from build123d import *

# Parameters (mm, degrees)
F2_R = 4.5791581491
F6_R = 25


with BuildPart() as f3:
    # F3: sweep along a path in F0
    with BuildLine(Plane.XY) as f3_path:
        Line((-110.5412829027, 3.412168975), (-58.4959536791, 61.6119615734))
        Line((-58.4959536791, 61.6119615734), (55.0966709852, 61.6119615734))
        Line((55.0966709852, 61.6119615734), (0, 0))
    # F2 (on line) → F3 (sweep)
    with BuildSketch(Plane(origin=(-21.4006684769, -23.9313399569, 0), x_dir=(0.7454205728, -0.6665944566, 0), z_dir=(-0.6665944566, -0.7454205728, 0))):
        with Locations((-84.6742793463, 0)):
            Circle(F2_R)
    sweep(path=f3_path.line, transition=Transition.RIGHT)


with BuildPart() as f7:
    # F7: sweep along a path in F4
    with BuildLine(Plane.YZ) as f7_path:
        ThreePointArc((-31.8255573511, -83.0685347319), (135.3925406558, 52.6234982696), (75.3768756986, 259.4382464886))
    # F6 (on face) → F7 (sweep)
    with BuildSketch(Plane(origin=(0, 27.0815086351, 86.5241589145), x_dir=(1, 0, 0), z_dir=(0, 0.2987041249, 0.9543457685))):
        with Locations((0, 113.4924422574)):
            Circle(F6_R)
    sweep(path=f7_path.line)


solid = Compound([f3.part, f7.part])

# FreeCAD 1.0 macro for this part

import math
import FreeCAD as App
import Part
import Sketcher

V = App.Vector

doc = App.newDocument("Part")
body = doc.addObject("PartDesign::Body", "Body")

# Sketch on an angled plane
sketch1 = body.newObject("Sketcher::SketchObject", "Sketch")
sketch1.Placement = App.Placement(V(-21.400668, -23.93134, 0), App.Rotation(V(0.745420573, -0.666594457, 0), V(0, 0, 1.000000001), V(-0.666594457, -0.745420573, 0), "ZXY"))
sketch1.addGeometry(Part.Circle(V(-84.7, 0, 0), V(0, 0, 1), 4.6), False)
sketch1.addConstraint([
    Sketcher.Constraint("PointOnObject", 0, 3, -1),
    Sketcher.Constraint("Diameter", 0, 9.158316),
    Sketcher.Constraint("DistanceX", 0, 3, -1, 1, 84.674279),
])

# Sketch on XY plane
sketch2 = body.newObject("Sketcher::SketchObject", "Sketch001")
sketch2.AttachmentSupport = (doc.getObject("XY_Plane"), [""])
sketch2.MapMode = "FlatFace"
sketch2.addGeometry([
    Part.LineSegment(V(-111, 3, 0), V(-58, 62, 0)),
    Part.LineSegment(V(-58, 62, 0), V(55, 62, 0)),
    Part.LineSegment(V(55, 62, 0), V(0, 0, 0)),
], False)
sketch2.addConstraint([
    Sketcher.Constraint("Coincident", 0, 2, 1, 1),
    Sketcher.Constraint("Coincident", 1, 2, 2, 1),
    Sketcher.Constraint("Horizontal", 1),
    Sketcher.Constraint("Coincident", 2, 2, -1, 1),
    Sketcher.Constraint("Parallel", 0, 2),
    Sketcher.Constraint("Distance", 0, 78.076451),
    Sketcher.Constraint("Distance", 2, 82.653959),
    Sketcher.Constraint("DistanceX", 1, 1, 1, 2, 113.592625),
    Sketcher.Constraint("DistanceY", -1, 1, 0, 1, 3.412169),
])
doc.recompute()

additivepipe = body.newObject("PartDesign::AdditivePipe", "AdditivePipe")
additivepipe.Profile = sketch1
additivepipe.Spine = (sketch2, ["Edge1", "Edge2", "Edge3"])
additivepipe.Transition = "Right corner"
body2 = doc.addObject("PartDesign::Body", "Body001")

# Sketch on an angled plane
sketch3 = body2.newObject("Sketcher::SketchObject", "Sketch002")
sketch3.Placement = App.Placement(V(0, 27.081509, 86.524159), App.Rotation(V(1, 0, 0), V(0, 0.954345768, -0.298704125), V(0, 0.298704125, 0.954345768), "ZXY"))
sketch3.addGeometry(Part.Circle(V(0, 113, 0), V(0, 0, 1), 25), False)
sketch3.addConstraint([
    Sketcher.Constraint("PointOnObject", 0, 3, -2),
    Sketcher.Constraint("Diameter", 0, 50.0),
    Sketcher.Constraint("DistanceY", -1, 1, 0, 3, 113.492442),
])

# Sketch on YZ plane
sketch4 = body2.newObject("Sketcher::SketchObject", "Sketch003")
sketch4.AttachmentSupport = (doc.getObject("YZ_Plane001"), [""])
sketch4.MapMode = "FlatFace"
sketch4.addGeometry(Part.ArcOfCircle(Part.Circle(V(-50, 111, 0), V(0, 0, 1), 195), math.radians(-85), math.radians(50)), False)
sketch4.addConstraint([
    Sketcher.Constraint("Radius", 0, 194.76437),
    Sketcher.Constraint("DistanceX", 0, 3, -1, 1, 50.480012),
    Sketcher.Constraint("DistanceY", -1, 1, 0, 3, 110.800419),
    Sketcher.Constraint("DistanceY", 0, 1, 0, 2, 342.506781),
    Sketcher.Constraint("DistanceX", 0, 1, -1, 1, 31.825557),
])
doc.recompute()

additivepipe2 = body2.newObject("PartDesign::AdditivePipe", "AdditivePipe001")
additivepipe2.Profile = sketch3
additivepipe2.Spine = (sketch4, ["Edge1"])

doc.recompute()
